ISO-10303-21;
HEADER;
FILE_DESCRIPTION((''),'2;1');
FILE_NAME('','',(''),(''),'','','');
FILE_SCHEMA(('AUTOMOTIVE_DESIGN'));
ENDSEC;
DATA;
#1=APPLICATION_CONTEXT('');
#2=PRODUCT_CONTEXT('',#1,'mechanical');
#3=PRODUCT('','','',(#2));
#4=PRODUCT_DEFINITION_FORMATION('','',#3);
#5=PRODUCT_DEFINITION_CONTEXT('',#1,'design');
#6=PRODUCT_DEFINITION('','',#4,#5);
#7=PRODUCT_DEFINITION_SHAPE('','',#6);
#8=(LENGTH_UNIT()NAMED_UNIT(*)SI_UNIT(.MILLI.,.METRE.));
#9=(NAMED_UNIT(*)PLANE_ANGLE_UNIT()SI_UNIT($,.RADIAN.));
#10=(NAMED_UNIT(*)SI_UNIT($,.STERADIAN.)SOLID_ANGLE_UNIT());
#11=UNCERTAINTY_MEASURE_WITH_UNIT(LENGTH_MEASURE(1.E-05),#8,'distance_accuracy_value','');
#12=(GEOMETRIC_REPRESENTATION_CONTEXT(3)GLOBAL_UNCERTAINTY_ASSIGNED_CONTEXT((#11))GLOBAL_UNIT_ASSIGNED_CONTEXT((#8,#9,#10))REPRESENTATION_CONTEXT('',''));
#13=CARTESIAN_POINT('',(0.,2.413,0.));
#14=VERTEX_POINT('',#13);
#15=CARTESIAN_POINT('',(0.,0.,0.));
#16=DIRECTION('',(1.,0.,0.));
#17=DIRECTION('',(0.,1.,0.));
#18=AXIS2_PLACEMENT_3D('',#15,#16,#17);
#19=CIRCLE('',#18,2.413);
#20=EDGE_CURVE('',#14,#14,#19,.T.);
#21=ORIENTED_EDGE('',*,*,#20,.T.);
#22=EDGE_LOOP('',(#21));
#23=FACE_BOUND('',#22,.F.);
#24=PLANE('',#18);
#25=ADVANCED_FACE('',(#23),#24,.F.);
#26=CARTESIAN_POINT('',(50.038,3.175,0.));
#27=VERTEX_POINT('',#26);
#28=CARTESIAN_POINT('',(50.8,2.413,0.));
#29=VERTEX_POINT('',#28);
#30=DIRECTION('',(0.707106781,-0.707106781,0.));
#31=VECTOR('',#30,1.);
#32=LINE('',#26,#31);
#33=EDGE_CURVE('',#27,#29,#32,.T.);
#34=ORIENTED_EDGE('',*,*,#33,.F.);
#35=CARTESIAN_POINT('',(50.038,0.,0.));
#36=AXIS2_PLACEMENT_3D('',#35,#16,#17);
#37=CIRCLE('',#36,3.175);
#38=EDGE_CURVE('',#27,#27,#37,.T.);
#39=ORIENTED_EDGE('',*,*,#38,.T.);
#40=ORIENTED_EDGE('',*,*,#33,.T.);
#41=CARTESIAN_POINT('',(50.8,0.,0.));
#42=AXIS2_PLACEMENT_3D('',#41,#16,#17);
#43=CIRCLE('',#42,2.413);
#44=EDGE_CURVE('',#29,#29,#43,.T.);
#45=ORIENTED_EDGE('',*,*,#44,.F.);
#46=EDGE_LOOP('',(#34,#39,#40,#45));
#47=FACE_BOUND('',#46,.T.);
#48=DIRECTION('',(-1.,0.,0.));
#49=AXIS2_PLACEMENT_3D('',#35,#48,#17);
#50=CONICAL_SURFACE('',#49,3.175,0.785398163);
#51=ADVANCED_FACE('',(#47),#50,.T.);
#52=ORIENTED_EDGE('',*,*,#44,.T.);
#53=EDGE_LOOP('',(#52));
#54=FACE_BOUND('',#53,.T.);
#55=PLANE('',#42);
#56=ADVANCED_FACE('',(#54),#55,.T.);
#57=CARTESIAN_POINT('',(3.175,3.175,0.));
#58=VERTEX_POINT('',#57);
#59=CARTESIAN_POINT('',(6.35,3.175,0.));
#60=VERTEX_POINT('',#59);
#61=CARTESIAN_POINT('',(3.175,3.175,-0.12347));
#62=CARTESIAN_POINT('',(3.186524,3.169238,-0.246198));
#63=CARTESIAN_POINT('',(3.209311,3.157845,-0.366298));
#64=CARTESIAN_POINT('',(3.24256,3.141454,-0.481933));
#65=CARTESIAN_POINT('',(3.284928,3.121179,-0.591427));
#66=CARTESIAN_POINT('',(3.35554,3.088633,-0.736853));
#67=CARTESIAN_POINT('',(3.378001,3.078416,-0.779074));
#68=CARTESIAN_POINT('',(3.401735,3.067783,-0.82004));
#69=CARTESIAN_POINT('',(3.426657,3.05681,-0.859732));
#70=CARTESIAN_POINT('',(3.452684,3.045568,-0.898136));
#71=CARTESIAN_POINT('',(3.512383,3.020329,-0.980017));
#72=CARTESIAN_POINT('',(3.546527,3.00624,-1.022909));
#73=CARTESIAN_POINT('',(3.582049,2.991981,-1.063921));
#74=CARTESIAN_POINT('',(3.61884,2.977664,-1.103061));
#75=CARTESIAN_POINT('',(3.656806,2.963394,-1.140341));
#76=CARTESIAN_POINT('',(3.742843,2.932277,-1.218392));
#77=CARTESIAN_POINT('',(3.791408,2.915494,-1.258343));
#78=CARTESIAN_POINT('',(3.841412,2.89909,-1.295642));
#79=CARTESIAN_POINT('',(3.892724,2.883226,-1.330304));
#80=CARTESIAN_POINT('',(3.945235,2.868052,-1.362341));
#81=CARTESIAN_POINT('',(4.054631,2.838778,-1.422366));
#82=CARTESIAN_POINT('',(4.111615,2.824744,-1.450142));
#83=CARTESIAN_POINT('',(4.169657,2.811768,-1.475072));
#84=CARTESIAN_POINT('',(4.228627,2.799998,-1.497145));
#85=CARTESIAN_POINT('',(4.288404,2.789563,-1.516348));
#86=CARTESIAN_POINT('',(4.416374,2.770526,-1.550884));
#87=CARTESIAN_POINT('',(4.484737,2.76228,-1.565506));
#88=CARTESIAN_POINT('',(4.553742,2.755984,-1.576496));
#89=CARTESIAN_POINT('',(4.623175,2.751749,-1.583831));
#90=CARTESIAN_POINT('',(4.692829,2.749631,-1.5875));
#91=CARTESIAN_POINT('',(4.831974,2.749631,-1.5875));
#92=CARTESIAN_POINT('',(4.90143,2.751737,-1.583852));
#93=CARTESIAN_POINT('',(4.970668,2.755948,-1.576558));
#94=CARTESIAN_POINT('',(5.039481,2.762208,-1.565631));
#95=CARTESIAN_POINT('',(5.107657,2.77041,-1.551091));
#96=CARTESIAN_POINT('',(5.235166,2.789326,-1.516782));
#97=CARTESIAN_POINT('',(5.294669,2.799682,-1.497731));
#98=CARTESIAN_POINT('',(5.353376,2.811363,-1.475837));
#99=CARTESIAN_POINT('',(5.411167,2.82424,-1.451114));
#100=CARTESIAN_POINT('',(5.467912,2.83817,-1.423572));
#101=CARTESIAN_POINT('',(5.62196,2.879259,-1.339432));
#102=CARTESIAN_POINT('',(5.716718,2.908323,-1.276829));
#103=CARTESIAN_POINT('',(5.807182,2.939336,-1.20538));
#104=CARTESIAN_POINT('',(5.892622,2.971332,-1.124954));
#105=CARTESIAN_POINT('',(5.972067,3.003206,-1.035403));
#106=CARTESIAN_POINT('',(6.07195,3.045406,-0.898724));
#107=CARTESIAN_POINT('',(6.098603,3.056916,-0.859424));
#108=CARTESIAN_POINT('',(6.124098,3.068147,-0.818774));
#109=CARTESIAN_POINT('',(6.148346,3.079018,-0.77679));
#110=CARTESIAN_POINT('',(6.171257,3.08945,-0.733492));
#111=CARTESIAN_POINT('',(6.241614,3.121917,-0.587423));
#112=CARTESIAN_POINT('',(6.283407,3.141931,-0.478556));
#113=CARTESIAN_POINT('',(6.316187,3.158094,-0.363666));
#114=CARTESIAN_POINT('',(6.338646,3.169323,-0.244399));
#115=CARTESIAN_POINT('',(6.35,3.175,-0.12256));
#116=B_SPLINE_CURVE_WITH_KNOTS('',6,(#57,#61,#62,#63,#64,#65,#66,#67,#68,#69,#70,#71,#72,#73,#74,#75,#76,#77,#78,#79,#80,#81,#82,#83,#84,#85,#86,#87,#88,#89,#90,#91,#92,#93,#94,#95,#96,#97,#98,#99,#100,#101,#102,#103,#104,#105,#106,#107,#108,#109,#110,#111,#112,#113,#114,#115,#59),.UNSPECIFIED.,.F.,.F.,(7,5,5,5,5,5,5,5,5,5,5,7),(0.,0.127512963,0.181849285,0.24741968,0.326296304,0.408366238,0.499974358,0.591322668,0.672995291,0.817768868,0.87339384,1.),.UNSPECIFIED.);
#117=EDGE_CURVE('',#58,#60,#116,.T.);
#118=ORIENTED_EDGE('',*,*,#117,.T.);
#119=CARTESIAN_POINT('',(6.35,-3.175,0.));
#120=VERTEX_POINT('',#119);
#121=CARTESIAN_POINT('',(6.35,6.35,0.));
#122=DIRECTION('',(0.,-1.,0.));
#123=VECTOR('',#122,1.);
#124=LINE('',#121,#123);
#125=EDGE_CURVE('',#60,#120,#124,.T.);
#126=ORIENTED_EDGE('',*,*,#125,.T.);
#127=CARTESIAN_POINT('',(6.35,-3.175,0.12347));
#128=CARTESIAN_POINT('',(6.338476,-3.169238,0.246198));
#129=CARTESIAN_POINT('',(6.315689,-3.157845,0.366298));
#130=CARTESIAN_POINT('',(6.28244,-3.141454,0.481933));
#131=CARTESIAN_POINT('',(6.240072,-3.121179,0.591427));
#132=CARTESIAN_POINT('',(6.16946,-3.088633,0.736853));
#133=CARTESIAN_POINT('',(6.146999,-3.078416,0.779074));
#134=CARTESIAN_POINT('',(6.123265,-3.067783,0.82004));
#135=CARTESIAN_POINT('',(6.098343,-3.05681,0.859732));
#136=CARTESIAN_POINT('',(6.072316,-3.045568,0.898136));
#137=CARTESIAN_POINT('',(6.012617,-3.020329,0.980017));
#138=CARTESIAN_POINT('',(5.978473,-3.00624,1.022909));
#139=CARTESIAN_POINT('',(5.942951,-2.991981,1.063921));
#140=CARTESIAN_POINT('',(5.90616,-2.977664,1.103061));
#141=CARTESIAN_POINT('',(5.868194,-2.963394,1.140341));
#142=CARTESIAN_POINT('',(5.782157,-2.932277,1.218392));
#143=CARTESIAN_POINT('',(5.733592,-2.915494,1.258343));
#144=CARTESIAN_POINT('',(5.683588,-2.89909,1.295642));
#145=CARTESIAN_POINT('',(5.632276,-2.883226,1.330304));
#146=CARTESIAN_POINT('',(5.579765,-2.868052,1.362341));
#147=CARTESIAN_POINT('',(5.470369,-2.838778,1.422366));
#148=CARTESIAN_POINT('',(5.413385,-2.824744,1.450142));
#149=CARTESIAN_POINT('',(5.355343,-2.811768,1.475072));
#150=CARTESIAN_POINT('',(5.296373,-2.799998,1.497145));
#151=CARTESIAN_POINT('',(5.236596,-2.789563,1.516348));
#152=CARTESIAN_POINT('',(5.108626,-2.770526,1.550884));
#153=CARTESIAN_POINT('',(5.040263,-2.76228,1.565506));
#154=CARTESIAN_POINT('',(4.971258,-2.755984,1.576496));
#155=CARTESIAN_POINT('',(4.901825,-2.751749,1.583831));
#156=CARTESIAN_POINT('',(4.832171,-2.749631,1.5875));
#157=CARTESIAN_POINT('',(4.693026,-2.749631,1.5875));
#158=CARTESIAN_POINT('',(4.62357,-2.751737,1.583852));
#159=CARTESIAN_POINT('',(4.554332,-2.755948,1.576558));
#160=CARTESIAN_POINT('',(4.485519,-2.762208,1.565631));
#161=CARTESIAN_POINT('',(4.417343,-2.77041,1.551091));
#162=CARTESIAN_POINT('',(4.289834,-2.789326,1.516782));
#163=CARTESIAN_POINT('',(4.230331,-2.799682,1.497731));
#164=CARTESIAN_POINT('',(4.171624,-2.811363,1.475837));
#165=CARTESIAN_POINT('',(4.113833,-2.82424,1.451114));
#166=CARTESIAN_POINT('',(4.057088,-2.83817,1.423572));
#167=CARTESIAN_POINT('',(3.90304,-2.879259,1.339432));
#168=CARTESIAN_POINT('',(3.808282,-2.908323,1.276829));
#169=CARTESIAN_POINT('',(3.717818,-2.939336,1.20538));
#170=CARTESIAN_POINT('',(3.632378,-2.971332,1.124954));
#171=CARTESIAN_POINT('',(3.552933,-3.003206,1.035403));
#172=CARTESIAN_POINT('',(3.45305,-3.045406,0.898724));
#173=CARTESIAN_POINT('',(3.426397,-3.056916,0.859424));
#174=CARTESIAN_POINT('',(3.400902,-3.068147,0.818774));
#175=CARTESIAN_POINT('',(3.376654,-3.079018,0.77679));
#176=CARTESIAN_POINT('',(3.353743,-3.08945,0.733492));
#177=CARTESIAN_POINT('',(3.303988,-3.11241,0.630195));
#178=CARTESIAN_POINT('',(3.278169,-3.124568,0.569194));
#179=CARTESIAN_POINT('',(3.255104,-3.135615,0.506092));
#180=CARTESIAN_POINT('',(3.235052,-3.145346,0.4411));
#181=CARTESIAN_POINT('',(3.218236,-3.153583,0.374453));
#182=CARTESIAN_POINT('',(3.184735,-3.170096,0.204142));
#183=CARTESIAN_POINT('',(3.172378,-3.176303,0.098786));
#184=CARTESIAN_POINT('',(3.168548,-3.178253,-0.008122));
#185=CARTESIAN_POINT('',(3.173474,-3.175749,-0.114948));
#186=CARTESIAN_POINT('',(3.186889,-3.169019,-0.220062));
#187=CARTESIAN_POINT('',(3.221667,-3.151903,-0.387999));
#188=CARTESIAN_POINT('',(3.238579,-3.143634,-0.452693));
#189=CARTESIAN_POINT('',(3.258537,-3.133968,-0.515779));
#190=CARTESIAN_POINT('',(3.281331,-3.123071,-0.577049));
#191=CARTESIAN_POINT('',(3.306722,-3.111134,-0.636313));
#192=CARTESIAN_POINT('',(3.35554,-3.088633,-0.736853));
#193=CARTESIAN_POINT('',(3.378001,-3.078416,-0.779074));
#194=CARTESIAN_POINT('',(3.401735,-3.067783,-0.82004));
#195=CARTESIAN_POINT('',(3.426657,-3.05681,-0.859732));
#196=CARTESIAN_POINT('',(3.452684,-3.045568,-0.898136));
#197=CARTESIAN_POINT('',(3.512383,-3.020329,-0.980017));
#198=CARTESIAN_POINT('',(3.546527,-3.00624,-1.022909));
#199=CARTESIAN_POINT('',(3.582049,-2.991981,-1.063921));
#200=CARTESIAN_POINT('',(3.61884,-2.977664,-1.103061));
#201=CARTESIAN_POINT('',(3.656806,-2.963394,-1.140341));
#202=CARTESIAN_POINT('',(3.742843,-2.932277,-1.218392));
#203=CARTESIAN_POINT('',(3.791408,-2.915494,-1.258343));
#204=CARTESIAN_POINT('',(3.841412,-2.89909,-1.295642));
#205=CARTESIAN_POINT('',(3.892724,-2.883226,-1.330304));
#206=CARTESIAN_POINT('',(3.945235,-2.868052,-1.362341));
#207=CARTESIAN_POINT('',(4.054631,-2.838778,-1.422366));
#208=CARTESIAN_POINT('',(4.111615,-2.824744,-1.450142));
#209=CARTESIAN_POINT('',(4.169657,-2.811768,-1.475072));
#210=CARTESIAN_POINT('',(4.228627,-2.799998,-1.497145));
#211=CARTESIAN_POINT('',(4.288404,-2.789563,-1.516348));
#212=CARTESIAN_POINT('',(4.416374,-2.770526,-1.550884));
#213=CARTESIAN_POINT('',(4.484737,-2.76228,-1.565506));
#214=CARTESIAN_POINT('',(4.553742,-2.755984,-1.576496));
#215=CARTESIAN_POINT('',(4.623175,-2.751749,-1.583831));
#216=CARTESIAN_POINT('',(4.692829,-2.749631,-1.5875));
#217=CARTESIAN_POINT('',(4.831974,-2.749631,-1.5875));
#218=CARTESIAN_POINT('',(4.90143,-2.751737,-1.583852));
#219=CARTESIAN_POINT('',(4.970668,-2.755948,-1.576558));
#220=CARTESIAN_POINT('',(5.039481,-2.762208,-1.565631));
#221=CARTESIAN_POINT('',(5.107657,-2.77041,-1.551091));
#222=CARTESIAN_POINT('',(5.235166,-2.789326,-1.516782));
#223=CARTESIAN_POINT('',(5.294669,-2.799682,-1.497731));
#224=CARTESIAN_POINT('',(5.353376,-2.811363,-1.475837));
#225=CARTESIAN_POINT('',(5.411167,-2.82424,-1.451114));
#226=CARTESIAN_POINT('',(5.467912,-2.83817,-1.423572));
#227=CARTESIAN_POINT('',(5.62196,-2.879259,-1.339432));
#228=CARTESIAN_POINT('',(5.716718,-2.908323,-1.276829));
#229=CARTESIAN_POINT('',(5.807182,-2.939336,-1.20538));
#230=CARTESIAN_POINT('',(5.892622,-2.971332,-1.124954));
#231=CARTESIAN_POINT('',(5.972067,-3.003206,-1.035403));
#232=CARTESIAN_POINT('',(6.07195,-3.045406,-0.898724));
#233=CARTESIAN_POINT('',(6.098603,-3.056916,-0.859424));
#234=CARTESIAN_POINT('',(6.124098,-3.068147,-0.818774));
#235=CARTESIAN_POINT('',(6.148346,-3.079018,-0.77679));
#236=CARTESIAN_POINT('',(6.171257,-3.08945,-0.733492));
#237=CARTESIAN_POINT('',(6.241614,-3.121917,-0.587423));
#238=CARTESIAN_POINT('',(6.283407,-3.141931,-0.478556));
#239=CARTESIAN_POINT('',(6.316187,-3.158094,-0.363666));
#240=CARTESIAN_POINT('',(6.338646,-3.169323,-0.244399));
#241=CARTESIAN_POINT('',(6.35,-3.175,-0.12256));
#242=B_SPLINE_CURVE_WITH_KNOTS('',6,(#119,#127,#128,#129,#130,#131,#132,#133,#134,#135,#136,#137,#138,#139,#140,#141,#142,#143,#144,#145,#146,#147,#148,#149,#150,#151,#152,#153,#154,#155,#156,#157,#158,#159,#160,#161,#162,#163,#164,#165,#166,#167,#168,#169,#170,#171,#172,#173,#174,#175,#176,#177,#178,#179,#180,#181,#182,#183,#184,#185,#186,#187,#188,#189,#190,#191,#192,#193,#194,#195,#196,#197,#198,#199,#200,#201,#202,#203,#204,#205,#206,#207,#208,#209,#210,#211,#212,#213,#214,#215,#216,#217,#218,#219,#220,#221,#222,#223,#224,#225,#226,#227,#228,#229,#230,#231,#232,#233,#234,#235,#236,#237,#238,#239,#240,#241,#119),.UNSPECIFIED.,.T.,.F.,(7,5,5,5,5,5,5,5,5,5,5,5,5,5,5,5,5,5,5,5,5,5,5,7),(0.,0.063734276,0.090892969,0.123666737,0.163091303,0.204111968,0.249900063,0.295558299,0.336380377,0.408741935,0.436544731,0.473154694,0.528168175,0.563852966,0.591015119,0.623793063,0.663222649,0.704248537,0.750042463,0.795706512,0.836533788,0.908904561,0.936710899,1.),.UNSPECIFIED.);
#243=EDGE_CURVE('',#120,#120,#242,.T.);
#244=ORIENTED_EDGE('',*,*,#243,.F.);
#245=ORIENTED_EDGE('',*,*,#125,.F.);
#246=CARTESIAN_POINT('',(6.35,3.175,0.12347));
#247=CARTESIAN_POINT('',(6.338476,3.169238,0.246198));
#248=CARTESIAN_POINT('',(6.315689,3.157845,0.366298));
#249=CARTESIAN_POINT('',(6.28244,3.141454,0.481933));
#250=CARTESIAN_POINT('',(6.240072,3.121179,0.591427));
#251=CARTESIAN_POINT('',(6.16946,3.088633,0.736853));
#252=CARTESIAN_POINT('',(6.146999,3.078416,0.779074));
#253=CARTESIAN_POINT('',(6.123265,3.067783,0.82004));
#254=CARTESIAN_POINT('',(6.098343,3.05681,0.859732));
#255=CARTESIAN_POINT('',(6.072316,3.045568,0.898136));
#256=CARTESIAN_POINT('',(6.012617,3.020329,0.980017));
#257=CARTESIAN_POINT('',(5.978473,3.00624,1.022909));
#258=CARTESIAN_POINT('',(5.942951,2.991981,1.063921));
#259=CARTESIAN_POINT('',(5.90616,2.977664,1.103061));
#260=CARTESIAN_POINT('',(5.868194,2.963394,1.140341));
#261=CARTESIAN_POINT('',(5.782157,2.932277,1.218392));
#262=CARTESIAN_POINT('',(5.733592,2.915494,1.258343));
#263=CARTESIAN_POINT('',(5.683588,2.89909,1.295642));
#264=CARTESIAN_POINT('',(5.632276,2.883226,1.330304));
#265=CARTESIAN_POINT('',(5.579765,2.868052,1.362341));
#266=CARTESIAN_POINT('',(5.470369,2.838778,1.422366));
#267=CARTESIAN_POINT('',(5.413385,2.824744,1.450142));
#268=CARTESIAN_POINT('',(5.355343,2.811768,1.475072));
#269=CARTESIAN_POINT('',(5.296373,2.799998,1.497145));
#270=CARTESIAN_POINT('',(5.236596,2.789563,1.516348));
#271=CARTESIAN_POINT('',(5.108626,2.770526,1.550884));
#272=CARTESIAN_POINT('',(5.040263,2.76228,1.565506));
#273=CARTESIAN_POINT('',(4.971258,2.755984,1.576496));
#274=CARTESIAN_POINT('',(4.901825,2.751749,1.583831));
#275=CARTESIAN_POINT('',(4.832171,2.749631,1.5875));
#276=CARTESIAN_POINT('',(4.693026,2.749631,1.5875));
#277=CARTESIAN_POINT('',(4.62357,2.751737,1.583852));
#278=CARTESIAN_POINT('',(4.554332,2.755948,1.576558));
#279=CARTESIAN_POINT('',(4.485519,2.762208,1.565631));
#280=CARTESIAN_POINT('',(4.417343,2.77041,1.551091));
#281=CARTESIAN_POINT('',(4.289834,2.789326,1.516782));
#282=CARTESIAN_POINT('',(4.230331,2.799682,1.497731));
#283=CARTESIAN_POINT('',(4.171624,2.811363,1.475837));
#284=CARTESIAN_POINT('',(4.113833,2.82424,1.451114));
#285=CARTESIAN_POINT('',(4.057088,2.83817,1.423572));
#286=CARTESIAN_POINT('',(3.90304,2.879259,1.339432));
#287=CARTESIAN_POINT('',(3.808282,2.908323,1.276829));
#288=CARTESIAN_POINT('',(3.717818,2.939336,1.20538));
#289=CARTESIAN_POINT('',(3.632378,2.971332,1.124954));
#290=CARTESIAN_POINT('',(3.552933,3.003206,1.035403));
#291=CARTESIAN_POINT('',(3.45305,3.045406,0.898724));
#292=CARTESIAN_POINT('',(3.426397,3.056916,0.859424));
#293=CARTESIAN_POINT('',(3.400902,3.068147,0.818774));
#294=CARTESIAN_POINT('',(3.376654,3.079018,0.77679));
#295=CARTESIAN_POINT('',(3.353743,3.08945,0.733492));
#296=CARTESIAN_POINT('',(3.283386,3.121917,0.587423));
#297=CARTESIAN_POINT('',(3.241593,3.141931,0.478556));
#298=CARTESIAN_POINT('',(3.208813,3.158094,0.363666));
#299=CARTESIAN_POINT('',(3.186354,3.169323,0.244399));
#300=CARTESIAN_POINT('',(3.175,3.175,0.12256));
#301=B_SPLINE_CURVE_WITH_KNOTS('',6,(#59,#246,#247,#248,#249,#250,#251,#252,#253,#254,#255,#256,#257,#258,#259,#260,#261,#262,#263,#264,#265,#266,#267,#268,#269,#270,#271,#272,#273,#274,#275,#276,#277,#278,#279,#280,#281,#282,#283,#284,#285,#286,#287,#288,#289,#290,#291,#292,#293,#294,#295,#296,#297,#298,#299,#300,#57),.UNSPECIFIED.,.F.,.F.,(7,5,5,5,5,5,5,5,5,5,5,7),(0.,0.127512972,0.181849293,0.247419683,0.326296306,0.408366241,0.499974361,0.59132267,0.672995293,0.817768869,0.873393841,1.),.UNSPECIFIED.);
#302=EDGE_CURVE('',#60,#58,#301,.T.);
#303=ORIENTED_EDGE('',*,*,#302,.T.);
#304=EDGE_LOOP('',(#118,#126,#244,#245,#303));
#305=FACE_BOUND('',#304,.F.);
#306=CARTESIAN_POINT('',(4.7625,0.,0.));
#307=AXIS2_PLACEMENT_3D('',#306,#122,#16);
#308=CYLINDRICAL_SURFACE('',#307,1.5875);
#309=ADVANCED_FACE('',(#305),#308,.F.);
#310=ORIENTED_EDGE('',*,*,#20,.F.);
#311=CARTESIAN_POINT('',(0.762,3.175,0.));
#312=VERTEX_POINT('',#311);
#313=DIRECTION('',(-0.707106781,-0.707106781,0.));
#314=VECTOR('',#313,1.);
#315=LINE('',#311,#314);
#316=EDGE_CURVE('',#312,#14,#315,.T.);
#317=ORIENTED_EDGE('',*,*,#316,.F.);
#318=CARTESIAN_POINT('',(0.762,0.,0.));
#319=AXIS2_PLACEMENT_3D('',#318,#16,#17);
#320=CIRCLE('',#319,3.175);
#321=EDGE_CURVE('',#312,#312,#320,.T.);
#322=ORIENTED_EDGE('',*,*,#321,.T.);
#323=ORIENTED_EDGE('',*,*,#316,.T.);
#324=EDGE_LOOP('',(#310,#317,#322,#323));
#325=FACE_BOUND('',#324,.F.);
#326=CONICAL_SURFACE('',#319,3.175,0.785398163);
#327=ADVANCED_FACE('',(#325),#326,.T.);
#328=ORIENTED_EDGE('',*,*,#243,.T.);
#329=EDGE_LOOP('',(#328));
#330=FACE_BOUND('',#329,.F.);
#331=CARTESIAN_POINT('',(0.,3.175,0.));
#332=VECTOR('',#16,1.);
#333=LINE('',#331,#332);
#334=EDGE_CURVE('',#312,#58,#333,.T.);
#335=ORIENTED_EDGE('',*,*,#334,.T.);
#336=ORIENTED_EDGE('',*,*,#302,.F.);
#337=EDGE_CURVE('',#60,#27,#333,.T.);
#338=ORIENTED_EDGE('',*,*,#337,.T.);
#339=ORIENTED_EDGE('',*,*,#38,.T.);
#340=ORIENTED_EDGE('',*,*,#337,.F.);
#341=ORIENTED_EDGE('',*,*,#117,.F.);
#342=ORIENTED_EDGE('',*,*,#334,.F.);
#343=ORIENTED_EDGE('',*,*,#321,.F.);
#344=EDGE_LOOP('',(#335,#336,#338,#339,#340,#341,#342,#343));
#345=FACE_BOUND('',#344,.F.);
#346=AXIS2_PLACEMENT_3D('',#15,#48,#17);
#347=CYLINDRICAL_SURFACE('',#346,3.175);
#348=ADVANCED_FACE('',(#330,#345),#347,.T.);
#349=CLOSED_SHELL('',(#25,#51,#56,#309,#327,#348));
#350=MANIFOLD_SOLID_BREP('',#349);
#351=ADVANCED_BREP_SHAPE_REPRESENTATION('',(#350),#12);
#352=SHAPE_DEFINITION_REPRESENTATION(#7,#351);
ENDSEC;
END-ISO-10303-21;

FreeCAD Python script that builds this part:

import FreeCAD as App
import Part
import Sketcher
Q = App.Units.Quantity

doc = App.newDocument("Part")
body = doc.addObject("PartDesign::Body", "Body")

# Sketch on YZ plane
sketch1 = doc.addObject("Sketcher::SketchObject", "Sketch")
body.addObject(sketch1)
sketch1.AttachmentSupport = (doc.YZ_Plane, [""])
sketch1.MapMode = "FlatFace"
sketch1.addGeometry(Part.Circle(App.Vector(0, 0, 0), App.Vector(0, 0, 1), 3.2), False)
sketch1.addConstraint(Sketcher.Constraint("Coincident", 0, 3, -1, 1))
sketch1.addConstraint(Sketcher.Constraint("Diameter", 0, Q("0.25 in")))
pad1 = doc.addObject("PartDesign::Pad", "Pad")
body.addObject(pad1)
pad1.Profile = sketch1
pad1.Length = Q("2 in")
doc.recompute()

chamfer = doc.addObject("PartDesign::Chamfer", "Chamfer")
body.addObject(chamfer)
chamfer.Base = (pad1, ["Edge1"])
chamfer.UseAllEdges = True
chamfer.Size = Q("0.03 in")
body2 = doc.addObject("PartDesign::Body", "Body001")

# Sketch on XZ plane
sketch2 = doc.addObject("Sketcher::SketchObject", "Sketch001")
body2.addObject(sketch2)
sketch2.AttachmentSupport = (doc.getObject("XZ_Plane001"), [""])
sketch2.MapMode = "FlatFace"
sketch2.addGeometry(Part.Circle(App.Vector(4.8, 0, 0), App.Vector(0, 0, 1), 1.6), False)
sketch2.addConstraint(Sketcher.Constraint("PointOnObject", 0, 3, -1))
sketch2.addConstraint(Sketcher.Constraint("Diameter", 0, Q("0.125 in")))
sketch2.addConstraint(Sketcher.Constraint("DistanceX", -1, 1, 0, 3, Q("0.1875 in")))
pad2 = doc.addObject("PartDesign::Pad", "Pad001")
body2.addObject(pad2)
pad2.Profile = sketch2
pad2.Length = Q("0.5 in")
pad2.Midplane = True
doc.recompute()

boolean = doc.addObject("PartDesign::Boolean", "Boolean")
body.addObject(boolean)
boolean.Type = "Cut"
boolean.addObjects([body2])

doc.recompute()
